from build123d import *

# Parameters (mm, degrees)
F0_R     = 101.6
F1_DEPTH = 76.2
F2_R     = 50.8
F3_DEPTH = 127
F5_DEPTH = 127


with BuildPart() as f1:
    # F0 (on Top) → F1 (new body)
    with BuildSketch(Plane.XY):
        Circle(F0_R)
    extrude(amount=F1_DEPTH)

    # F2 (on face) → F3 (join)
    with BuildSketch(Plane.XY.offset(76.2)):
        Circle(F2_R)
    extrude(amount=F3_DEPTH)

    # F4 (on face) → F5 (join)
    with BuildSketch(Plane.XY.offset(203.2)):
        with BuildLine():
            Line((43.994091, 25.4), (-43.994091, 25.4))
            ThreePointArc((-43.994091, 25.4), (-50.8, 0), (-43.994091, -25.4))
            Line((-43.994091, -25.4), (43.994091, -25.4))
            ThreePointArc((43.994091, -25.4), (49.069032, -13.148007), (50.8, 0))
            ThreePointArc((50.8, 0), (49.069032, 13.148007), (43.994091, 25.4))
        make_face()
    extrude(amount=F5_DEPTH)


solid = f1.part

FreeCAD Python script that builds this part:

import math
import FreeCAD as App
import Part
import Sketcher
from FreeCAD import Vector
Q = App.Units.Quantity

doc = App.newDocument("Part")
body = doc.addObject("PartDesign::Body", "Body")

# Sketch on XY plane
sketch1 = doc.addObject("Sketcher::SketchObject", "Sketch")
body.addObject(sketch1)
sketch1.AttachmentSupport = (doc.XY_Plane, [""])
sketch1.MapMode = "FlatFace"
sketch1.addGeometry(Part.Circle(Vector(0, 0, 0), Vector(0, 0, 1), 102), False)
sketch1.addConstraint([
    Sketcher.Constraint("Coincident", 0, 3, -1, 1),
    Sketcher.Constraint("Diameter", 0, Q("8 in")),
])
pad1 = doc.addObject("PartDesign::Pad", "Pad")
body.addObject(pad1)
pad1.Profile = sketch1
pad1.Length = Q("3 in")

# Sketch on XY plane
sketch2 = doc.addObject("Sketcher::SketchObject", "Sketch001")
body.addObject(sketch2)
sketch2.AttachmentSupport = (doc.XY_Plane, [""])
sketch2.MapMode = "FlatFace"
sketch2.AttachmentOffset = App.Placement(Vector(0, 0, 3 * 25.4), App.Rotation())
sketch2.addGeometry(Part.Circle(Vector(0, 0, 0), Vector(0, 0, 1), 51), False)
sketch2.addConstraint([
    Sketcher.Constraint("Coincident", 0, 3, -1, 1),
    Sketcher.Constraint("Diameter", 0, Q("4 in")),
])
pad2 = doc.addObject("PartDesign::Pad", "Pad001")
body.addObject(pad2)
pad2.Profile = sketch2
pad2.Length = Q("5 in")

# Sketch on XY plane
sketch3 = doc.addObject("Sketcher::SketchObject", "Sketch002")
body.addObject(sketch3)
sketch3.AttachmentSupport = (doc.XY_Plane, [""])
sketch3.MapMode = "FlatFace"
sketch3.AttachmentOffset = App.Placement(Vector(0, 0, 8 * 25.4), App.Rotation())
sketch3.addGeometry([
    Part.LineSegment(Vector(44, 25, 0), Vector(-44, 25, 0)),  # 0
    Part.ArcOfCircle(Part.Circle(Vector(0, 0, 0), Vector(0, 0, 1), 51), math.radians(150), math.radians(210)),  # 1
    Part.LineSegment(Vector(-44, -25, 0), Vector(44, -25, 0)),  # 2
    Part.ArcOfCircle(Part.Circle(Vector(0, 0, 0), Vector(0, 0, 1), 51), math.radians(-30), math.radians(0)),  # 3
    Part.ArcOfCircle(Part.Circle(Vector(0, 0, 0), Vector(0, 0, 1), 51), math.radians(0), math.radians(30)),  # 4
], False)
sketch3.addConstraint([
    Sketcher.Constraint("Coincident", 0, 2, 1, 1),
    Sketcher.Constraint("Coincident", 1, 2, 2, 1),
    Sketcher.Constraint("Coincident", 2, 2, 3, 1),
    Sketcher.Constraint("Tangent", 3, 2, 4, 1),
    Sketcher.Constraint("Coincident", 4, 2, 0, 1),
    Sketcher.Constraint("Horizontal", 0),
    Sketcher.Constraint("Horizontal", 2),
    Sketcher.Constraint("Coincident", 1, 3, -1, 1),
    Sketcher.Constraint("Coincident", 3, 3, -1, 1),
    Sketcher.Constraint("Equal", 3, 4),
    Sketcher.Constraint("Symmetric", 0, 2, 2, 2, -1, 1),
    Sketcher.Constraint("PointOnObject", 3, 2, -1),
    Sketcher.Constraint("Radius", 1, Q("2.0000001 in")),
    Sketcher.Constraint("DistanceY", -1, 1, 0, 2, Q("1 in")),
])
pad3 = doc.addObject("PartDesign::Pad", "Pad002")
body.addObject(pad3)
pad3.Profile = sketch3
pad3.Length = Q("5 in")

doc.recompute()
